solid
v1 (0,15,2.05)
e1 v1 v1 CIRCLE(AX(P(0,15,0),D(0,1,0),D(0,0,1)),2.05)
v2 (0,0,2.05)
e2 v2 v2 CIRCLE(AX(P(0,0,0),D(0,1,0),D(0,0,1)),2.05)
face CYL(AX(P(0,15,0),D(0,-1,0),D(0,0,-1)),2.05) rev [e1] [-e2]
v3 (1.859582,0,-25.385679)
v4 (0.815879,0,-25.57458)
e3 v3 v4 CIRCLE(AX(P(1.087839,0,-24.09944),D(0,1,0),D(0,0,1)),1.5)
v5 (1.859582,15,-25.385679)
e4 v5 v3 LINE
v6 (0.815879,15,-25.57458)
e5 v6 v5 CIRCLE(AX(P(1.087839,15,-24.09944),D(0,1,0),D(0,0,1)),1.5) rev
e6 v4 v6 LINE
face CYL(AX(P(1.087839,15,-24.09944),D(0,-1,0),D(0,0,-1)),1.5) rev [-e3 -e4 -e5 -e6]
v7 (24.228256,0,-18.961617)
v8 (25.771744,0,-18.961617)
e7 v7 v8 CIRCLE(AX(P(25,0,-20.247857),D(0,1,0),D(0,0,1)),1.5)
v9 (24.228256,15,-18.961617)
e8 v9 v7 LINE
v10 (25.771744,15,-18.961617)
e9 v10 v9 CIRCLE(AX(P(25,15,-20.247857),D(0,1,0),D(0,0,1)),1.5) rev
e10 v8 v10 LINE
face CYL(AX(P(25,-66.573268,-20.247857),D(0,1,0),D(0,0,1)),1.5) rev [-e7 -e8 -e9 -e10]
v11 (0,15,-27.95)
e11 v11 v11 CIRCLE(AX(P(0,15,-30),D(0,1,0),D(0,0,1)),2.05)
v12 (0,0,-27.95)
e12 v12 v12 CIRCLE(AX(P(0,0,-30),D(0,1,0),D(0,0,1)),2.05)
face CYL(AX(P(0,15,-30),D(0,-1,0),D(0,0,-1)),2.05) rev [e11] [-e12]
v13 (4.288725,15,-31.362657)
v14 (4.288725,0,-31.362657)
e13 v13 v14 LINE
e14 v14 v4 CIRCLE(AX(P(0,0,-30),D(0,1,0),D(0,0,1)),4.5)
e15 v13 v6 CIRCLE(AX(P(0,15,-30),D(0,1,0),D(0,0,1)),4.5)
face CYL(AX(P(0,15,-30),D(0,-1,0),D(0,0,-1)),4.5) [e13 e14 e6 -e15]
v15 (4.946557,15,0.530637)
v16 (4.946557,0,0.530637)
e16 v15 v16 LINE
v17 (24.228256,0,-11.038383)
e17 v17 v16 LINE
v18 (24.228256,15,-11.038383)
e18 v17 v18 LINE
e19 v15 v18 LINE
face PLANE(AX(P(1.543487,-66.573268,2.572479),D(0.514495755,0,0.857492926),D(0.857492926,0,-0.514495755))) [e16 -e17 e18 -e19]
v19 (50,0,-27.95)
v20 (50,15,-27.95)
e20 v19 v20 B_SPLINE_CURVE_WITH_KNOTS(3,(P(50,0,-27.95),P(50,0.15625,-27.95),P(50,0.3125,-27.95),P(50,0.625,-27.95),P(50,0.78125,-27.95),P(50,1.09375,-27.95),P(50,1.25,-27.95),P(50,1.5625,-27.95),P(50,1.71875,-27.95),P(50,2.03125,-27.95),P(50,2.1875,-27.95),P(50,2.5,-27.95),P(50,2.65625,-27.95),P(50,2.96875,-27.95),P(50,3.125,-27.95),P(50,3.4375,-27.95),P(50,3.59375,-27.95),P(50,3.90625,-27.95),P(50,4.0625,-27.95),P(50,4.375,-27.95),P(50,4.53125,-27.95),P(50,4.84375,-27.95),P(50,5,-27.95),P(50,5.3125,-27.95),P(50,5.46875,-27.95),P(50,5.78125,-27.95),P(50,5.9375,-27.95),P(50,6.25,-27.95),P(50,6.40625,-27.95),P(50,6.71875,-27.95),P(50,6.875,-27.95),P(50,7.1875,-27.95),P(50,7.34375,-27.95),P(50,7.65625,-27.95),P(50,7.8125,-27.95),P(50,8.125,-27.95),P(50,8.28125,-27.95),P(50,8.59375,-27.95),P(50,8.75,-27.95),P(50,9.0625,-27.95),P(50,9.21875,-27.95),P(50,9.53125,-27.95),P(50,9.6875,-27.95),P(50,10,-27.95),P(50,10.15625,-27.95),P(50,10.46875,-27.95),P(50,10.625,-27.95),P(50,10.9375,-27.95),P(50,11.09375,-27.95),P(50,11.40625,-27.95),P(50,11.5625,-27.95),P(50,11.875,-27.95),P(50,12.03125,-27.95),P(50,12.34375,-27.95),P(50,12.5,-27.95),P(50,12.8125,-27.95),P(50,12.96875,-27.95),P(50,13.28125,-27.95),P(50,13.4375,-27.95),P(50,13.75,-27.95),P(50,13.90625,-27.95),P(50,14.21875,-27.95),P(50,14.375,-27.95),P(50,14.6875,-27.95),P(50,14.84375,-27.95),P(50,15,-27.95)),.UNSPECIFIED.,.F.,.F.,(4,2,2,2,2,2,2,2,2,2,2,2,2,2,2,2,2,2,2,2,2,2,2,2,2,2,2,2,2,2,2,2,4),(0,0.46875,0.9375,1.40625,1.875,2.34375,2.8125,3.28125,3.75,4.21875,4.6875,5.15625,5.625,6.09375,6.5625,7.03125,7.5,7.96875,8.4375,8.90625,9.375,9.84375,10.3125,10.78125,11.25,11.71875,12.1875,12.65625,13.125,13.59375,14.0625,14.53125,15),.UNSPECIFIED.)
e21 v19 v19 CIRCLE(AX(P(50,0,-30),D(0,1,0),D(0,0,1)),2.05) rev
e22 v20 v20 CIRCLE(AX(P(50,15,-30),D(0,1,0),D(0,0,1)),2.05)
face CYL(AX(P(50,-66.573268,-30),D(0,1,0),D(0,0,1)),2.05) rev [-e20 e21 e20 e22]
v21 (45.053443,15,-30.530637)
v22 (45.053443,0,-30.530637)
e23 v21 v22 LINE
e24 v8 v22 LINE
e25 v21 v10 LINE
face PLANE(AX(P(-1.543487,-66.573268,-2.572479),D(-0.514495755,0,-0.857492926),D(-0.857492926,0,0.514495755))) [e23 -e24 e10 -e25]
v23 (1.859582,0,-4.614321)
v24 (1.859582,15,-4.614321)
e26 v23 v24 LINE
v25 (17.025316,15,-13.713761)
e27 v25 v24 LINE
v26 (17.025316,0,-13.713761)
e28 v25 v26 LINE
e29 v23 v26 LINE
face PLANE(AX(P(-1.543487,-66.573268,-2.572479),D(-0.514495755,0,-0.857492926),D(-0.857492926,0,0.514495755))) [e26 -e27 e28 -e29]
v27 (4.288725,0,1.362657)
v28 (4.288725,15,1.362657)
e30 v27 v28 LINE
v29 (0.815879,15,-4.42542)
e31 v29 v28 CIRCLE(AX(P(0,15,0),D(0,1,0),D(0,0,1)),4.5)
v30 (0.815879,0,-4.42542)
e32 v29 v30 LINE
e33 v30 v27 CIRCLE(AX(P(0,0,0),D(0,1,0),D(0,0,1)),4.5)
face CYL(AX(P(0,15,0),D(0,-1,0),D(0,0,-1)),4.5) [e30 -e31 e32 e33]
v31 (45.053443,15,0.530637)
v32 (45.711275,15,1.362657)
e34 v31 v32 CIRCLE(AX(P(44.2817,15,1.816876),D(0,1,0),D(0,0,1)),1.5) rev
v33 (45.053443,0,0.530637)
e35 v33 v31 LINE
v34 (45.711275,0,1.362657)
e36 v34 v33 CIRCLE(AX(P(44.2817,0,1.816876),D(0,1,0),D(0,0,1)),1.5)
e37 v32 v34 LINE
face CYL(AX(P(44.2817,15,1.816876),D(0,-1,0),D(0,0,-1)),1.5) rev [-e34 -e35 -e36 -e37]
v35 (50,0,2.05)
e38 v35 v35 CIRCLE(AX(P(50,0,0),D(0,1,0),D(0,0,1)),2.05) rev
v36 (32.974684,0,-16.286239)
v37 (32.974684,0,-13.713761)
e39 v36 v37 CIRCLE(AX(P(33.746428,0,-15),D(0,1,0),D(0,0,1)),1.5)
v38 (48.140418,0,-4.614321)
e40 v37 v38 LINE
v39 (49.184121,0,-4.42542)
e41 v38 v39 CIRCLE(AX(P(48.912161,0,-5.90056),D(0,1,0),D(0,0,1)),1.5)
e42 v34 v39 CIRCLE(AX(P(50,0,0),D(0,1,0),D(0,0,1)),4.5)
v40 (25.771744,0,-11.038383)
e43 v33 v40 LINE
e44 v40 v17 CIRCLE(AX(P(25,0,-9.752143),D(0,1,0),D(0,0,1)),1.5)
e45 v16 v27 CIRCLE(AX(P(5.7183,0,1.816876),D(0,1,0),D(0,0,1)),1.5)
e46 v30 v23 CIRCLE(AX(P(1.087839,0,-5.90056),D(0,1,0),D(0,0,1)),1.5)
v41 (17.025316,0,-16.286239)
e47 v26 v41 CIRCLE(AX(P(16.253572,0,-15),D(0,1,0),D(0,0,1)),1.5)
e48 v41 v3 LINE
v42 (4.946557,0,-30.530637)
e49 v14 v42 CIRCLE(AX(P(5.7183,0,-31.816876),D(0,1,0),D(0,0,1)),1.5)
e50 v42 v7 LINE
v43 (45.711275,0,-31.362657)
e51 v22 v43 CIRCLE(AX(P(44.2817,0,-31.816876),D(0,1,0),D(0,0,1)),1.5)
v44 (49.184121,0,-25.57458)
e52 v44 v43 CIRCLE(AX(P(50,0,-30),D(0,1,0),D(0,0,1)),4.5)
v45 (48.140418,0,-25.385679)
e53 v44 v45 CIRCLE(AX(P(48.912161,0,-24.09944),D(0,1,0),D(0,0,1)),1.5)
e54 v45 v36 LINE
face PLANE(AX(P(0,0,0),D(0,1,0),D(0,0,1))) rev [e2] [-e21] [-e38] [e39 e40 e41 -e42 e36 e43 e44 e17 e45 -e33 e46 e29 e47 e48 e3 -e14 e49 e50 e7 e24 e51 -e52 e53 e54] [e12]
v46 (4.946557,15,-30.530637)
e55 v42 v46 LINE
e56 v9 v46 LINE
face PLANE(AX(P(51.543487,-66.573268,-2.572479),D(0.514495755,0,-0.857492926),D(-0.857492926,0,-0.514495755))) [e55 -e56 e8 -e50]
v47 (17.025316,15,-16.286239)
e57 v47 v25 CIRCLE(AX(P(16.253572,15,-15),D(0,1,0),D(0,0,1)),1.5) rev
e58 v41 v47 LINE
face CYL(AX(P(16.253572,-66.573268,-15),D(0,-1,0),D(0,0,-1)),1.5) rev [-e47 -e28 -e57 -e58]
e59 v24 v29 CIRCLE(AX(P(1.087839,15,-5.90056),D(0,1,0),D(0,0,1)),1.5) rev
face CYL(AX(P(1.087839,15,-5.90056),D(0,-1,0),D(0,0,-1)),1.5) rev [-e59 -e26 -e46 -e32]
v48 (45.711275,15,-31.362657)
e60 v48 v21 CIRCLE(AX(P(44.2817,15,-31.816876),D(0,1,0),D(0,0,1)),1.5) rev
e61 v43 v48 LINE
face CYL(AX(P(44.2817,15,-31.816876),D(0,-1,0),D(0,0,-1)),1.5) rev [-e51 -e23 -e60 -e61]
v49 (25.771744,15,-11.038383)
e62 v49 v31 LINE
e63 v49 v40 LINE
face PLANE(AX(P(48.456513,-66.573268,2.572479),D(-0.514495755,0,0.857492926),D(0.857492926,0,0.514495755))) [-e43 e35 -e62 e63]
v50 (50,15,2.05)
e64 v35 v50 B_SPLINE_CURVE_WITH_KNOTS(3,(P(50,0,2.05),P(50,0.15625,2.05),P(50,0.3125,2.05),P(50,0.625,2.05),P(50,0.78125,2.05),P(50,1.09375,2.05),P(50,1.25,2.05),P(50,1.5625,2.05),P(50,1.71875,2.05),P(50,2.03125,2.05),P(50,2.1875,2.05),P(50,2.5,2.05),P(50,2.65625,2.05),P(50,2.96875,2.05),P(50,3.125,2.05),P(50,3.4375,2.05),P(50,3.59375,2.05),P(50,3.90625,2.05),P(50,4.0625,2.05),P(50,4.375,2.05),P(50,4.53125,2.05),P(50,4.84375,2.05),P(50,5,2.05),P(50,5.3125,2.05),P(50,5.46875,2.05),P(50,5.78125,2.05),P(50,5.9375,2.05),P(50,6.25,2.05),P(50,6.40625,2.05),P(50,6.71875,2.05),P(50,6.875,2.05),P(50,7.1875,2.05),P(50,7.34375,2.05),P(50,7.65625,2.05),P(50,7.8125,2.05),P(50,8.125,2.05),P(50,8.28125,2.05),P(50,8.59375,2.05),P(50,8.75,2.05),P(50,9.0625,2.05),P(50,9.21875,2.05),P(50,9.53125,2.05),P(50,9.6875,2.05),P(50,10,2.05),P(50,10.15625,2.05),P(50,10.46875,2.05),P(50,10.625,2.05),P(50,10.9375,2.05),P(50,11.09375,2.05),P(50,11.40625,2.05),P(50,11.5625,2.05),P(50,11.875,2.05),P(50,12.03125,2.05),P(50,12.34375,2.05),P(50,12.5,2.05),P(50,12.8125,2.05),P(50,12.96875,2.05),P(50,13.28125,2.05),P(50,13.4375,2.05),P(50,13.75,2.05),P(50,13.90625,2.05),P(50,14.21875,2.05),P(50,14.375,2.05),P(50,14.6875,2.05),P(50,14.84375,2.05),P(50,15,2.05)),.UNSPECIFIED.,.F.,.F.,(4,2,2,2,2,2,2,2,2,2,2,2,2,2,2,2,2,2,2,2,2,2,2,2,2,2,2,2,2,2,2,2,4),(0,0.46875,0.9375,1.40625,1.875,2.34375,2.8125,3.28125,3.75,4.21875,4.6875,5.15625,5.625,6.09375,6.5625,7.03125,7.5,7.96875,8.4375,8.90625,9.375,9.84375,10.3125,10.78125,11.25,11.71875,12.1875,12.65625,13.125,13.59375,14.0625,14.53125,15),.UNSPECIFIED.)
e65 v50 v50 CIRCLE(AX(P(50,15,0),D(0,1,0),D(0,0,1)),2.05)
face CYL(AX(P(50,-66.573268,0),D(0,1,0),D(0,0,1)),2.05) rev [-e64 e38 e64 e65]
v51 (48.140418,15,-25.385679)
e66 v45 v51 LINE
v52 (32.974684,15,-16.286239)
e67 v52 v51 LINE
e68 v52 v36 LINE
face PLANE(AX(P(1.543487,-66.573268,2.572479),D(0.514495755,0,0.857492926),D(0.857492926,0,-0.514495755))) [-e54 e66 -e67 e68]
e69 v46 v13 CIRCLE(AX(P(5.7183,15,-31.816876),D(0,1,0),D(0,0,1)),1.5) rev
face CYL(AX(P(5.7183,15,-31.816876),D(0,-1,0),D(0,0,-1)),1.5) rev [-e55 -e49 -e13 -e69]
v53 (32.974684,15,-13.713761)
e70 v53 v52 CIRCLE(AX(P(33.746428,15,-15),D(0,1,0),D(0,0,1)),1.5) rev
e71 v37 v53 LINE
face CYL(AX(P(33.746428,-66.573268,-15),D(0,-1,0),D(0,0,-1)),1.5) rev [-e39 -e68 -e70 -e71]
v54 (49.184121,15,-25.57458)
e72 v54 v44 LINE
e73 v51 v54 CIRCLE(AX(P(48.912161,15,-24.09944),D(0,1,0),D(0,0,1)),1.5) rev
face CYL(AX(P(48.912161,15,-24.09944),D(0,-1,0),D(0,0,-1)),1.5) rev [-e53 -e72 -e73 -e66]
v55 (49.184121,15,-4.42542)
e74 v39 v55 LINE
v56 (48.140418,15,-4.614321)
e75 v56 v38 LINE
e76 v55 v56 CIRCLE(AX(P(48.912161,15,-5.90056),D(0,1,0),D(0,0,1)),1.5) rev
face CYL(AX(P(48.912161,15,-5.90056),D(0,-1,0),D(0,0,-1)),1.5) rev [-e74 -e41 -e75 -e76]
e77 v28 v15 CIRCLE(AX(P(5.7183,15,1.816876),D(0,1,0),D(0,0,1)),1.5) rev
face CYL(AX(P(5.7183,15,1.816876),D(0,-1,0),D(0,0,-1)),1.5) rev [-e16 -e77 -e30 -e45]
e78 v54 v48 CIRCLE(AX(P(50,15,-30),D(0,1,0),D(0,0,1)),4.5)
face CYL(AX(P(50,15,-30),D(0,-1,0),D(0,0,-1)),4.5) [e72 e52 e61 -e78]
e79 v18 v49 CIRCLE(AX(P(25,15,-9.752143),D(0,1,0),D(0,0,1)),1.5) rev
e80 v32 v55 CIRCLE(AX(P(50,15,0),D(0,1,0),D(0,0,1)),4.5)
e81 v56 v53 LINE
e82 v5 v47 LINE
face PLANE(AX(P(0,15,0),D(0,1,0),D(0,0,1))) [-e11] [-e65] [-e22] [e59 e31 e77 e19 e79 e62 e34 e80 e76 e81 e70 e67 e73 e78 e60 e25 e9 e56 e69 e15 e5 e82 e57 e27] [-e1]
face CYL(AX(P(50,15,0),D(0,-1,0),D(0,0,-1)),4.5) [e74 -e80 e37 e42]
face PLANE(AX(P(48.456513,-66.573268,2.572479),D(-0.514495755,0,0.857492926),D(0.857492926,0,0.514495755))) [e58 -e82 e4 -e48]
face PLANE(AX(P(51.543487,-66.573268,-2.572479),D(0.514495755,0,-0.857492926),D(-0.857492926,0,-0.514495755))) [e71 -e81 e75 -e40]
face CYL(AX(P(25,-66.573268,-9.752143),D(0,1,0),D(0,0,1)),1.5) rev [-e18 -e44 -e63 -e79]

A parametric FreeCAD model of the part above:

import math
import FreeCAD as App
import Part
import Sketcher

V = App.Vector
Q = App.Units.Quantity


def edges_at(feature, points):
    """Names of the edges that pass closest to the given points."""
    edges = feature.Shape.Edges
    near = lambda p: min(range(len(edges)), key=lambda i: edges[i].distToShape(Part.Vertex(*p))[0])
    return sorted({f"Edge{near(p) + 1}" for p in points})

doc = App.newDocument("Part")
body = doc.addObject("PartDesign::Body", "Body")

# Sketch on XZ plane
sketch1 = body.newObject("Sketcher::SketchObject", "Sketch")
sketch1.AttachmentSupport = (doc.getObject("XZ_Plane"), [""])
sketch1.MapMode = "FlatFace"
sketch1.addGeometry([
    Part.Circle(V(0, 0, 0), V(0, 0, 1), 4.5),
    Part.Circle(V(0, 0, 0), V(0, 0, 1), 2.05),
], False)
sketch1.addConstraint([
    Sketcher.Constraint("Coincident", 0, 3, -1, 1),
    Sketcher.Constraint("Coincident", 1, 3, -1, 1),
    Sketcher.Constraint("Diameter", 0, Q("9 mm")),
    Sketcher.Constraint("Diameter", 1, Q("4.1 mm")),
])
pad1 = body.newObject("PartDesign::Pad", "Pad")
pad1.Profile = sketch1
pad1.Length = 15
pad1.Reversed = True
body2 = doc.addObject("PartDesign::Body", "Body001")

# Sketch on XZ plane
sketch2 = body2.newObject("Sketcher::SketchObject", "Sketch001")
sketch2.AttachmentSupport = (doc.getObject("XZ_Plane001"), [""])
sketch2.MapMode = "FlatFace"
sketch2.addGeometry([
    Part.Circle(V(0, -30, 0), V(0, 0, 1), 4.5),
    Part.Circle(V(0, -30, 0), V(0, 0, 1), 2.05),
], False)
sketch2.addConstraint([
    Sketcher.Constraint("Coincident", 1, 3, 0, 3),
    Sketcher.Constraint("PointOnObject", 0, 3, -2),
    Sketcher.Constraint("Diameter", 0, Q("9 mm")),
    Sketcher.Constraint("Diameter", 1, Q("4.1 mm")),
    Sketcher.Constraint("DistanceY", 0, 3, -1, 1, Q("30 mm")),
])
pad2 = body2.newObject("PartDesign::Pad", "Pad001")
pad2.Profile = sketch2
pad2.Length = 15
pad2.Reversed = True
body3 = doc.addObject("PartDesign::Body", "Body002")

# Sketch on XZ plane
sketch3 = body3.newObject("Sketcher::SketchObject", "Sketch002")
sketch3.AttachmentSupport = (doc.getObject("XZ_Plane002"), [""])
sketch3.MapMode = "FlatFace"
sketch3.addGeometry([
    Part.Circle(V(50, -30, 0), V(0, 0, 1), 4.5),
    Part.Circle(V(50, -30, 0), V(0, 0, 1), 2.05),
], False)
sketch3.addConstraint([
    Sketcher.Constraint("Coincident", 1, 3, 0, 3),
    Sketcher.Constraint("Diameter", 0, Q("9 mm")),
    Sketcher.Constraint("Diameter", 1, Q("4.1 mm")),
    Sketcher.Constraint("DistanceX", -1, 1, 0, 3, Q("50 mm")),
    Sketcher.Constraint("DistanceY", 0, 3, -1, 1, Q("30 mm")),
])
pad3 = body3.newObject("PartDesign::Pad", "Pad002")
pad3.Profile = sketch3
pad3.Length = 15
pad3.Reversed = True
body4 = doc.addObject("PartDesign::Body", "Body003")

# Sketch on XZ plane
sketch4 = body4.newObject("Sketcher::SketchObject", "Sketch003")
sketch4.AttachmentSupport = (doc.getObject("XZ_Plane003"), [""])
sketch4.MapMode = "FlatFace"
sketch4.addGeometry([
    Part.Circle(V(50, 0, 0), V(0, 0, 1), 4.5),
    Part.Circle(V(50, 0, 0), V(0, 0, 1), 2.05),
], False)
sketch4.addConstraint([
    Sketcher.Constraint("Coincident", 1, 3, 0, 3),
    Sketcher.Constraint("PointOnObject", 0, 3, -1),
    Sketcher.Constraint("Diameter", 0, Q("9 mm")),
    Sketcher.Constraint("Diameter", 1, Q("4.1 mm")),
    Sketcher.Constraint("DistanceX", -1, 1, 0, 3, Q("50 mm")),
])
pad4 = body4.newObject("PartDesign::Pad", "Pad003")
pad4.Profile = sketch4
pad4.Length = 15
pad4.Reversed = True
body2.AllowCompound = True
doc.recompute()

boolean = body2.newObject("PartDesign::Boolean", "Boolean")
boolean.Type = "Fuse"
boolean.addObjects([body4])

# Sketch on XZ plane
sketch5 = body2.newObject("Sketcher::SketchObject", "Sketch004")
sketch5.AttachmentSupport = (doc.getObject("XZ_Plane001"), [""])
sketch5.MapMode = "FlatFace"
sketch5.AttachmentOffset = App.Placement(V(0, 0, -15), App.Rotation())
sketch5.addGeometry([
    Part.LineSegment(V(51.543487, -2.572479, 0), V(1.543487, -32.572479, 0)),  # 0
    Part.ArcOfCircle(Part.Circle(V(0, -30, 0), V(0, 0, 1), 3), math.radians(120.963757), math.radians(300.963757)),  # 1
    Part.LineSegment(V(-1.543487, -27.427521, 0), V(48.456513, 2.572479, 0)),  # 2
    Part.ArcOfCircle(Part.Circle(V(50, 0, 0), V(0, 0, 1), 3), math.radians(-59.036243), math.radians(120.963757)),  # 3
    Part.Circle(V(50, 0, 0), V(0, 0, 1), 2.05),  # 4
    Part.Circle(V(0, -30, 0), V(0, 0, 1), 2.05),  # 5
], False)
sketch5.addConstraint([
    Sketcher.Constraint("Tangent", 0, 2, 1, 2),
    Sketcher.Constraint("Tangent", 1, 1, 2, 1),
    Sketcher.Constraint("Tangent", 2, 2, 3, 2),
    Sketcher.Constraint("Tangent", 3, 1, 0, 1),
    Sketcher.Constraint("Coincident", 4, 3, 3, 3),
    Sketcher.Constraint("Coincident", 5, 3, 1, 3),
    Sketcher.Constraint("Equal", 1, 3),
    Sketcher.Constraint("Equal", 4, 5),
    Sketcher.Constraint("PointOnObject", 1, 3, -2),
    Sketcher.Constraint("PointOnObject", 3, 3, -1),
    Sketcher.Constraint("Radius", 1, Q("3 mm")),
    Sketcher.Constraint("Diameter", 4, Q("4.1 mm")),
    Sketcher.Constraint("DistanceY", 1, 3, -1, 1, Q("30 mm")),
    Sketcher.Constraint("DistanceX", -1, 1, 3, 3, Q("50 mm")),
])
pad5 = body2.newObject("PartDesign::Pad", "Pad004")
pad5.Profile = sketch5
pad5.Length = 15
body.AllowCompound = True
doc.recompute()

boolean2 = body.newObject("PartDesign::Boolean", "Boolean001")
boolean2.Type = "Fuse"
boolean2.addObjects([body2])
doc.recompute()

boolean3 = body.newObject("PartDesign::Boolean", "Boolean002")
boolean3.Type = "Fuse"
boolean3.addObjects([body3])

# Sketch on XZ plane
sketch6 = body.newObject("Sketcher::SketchObject", "Sketch005")
sketch6.AttachmentSupport = (doc.getObject("XZ_Plane"), [""])
sketch6.MapMode = "FlatFace"
sketch6.addGeometry([
    Part.LineSegment(V(48.456513, -32.572479, 0), V(-1.543487, -2.572479, 0)),  # 0
    Part.ArcOfCircle(Part.Circle(V(0, 0, 0), V(0, 0, 1), 3), math.radians(59.036243), math.radians(239.036243)),  # 1
    Part.LineSegment(V(1.543487, 2.572479, 0), V(51.543487, -27.427521, 0)),  # 2
    Part.ArcOfCircle(Part.Circle(V(50, -30, 0), V(0, 0, 1), 3), math.radians(-120.963757), math.radians(59.036243)),  # 3
    Part.Circle(V(0, 0, 0), V(0, 0, 1), 2.05),  # 4
    Part.Circle(V(50, -30, 0), V(0, 0, 1), 2.05),  # 5
], False)
sketch6.addConstraint([
    Sketcher.Constraint("Tangent", 0, 2, 1, 2),
    Sketcher.Constraint("Tangent", 1, 1, 2, 1),
    Sketcher.Constraint("Tangent", 2, 2, 3, 2),
    Sketcher.Constraint("Tangent", 3, 1, 0, 1),
    Sketcher.Constraint("Coincident", 1, 3, -1, 1),
    Sketcher.Constraint("Coincident", 4, 3, -1, 1),
    Sketcher.Constraint("Coincident", 5, 3, 3, 3),
    Sketcher.Constraint("Equal", 1, 3),
    Sketcher.Constraint("Equal", 4, 5),
    Sketcher.Constraint("Radius", 1, Q("3 mm")),
    Sketcher.Constraint("Diameter", 4, Q("4.1 mm")),
    Sketcher.Constraint("DistanceX", -1, 1, 3, 3, Q("50 mm")),
    Sketcher.Constraint("DistanceY", 3, 3, -1, 1, Q("30 mm")),
])
pad6 = body.newObject("PartDesign::Pad", "Pad005")
pad6.Profile = sketch6
pad6.Length = 15
pad6.Reversed = True
doc.recompute()

fillet = body.newObject("PartDesign::Fillet", "Fillet")
fillet.Base = (pad6, edges_at(pad6, [
    (1.333, 7.5, -4.298),
    (4.42, 7.5, 0.847),
    (45.58, 7.5, -30.847),
    (48.667, 7.5, -25.702),
    (30.831, 7.5, -15),
    (48.667, 7.5, -4.298),
    (25, 7.5, -11.501),
    (45.58, 7.5, 0.847),
    (25, 7.5, -18.499),
    (19.169, 7.5, -15),
    (4.42, 7.5, -30.847),
    (1.333, 7.5, -25.702),
]))
fillet.Radius = 1.5

doc.recompute()
